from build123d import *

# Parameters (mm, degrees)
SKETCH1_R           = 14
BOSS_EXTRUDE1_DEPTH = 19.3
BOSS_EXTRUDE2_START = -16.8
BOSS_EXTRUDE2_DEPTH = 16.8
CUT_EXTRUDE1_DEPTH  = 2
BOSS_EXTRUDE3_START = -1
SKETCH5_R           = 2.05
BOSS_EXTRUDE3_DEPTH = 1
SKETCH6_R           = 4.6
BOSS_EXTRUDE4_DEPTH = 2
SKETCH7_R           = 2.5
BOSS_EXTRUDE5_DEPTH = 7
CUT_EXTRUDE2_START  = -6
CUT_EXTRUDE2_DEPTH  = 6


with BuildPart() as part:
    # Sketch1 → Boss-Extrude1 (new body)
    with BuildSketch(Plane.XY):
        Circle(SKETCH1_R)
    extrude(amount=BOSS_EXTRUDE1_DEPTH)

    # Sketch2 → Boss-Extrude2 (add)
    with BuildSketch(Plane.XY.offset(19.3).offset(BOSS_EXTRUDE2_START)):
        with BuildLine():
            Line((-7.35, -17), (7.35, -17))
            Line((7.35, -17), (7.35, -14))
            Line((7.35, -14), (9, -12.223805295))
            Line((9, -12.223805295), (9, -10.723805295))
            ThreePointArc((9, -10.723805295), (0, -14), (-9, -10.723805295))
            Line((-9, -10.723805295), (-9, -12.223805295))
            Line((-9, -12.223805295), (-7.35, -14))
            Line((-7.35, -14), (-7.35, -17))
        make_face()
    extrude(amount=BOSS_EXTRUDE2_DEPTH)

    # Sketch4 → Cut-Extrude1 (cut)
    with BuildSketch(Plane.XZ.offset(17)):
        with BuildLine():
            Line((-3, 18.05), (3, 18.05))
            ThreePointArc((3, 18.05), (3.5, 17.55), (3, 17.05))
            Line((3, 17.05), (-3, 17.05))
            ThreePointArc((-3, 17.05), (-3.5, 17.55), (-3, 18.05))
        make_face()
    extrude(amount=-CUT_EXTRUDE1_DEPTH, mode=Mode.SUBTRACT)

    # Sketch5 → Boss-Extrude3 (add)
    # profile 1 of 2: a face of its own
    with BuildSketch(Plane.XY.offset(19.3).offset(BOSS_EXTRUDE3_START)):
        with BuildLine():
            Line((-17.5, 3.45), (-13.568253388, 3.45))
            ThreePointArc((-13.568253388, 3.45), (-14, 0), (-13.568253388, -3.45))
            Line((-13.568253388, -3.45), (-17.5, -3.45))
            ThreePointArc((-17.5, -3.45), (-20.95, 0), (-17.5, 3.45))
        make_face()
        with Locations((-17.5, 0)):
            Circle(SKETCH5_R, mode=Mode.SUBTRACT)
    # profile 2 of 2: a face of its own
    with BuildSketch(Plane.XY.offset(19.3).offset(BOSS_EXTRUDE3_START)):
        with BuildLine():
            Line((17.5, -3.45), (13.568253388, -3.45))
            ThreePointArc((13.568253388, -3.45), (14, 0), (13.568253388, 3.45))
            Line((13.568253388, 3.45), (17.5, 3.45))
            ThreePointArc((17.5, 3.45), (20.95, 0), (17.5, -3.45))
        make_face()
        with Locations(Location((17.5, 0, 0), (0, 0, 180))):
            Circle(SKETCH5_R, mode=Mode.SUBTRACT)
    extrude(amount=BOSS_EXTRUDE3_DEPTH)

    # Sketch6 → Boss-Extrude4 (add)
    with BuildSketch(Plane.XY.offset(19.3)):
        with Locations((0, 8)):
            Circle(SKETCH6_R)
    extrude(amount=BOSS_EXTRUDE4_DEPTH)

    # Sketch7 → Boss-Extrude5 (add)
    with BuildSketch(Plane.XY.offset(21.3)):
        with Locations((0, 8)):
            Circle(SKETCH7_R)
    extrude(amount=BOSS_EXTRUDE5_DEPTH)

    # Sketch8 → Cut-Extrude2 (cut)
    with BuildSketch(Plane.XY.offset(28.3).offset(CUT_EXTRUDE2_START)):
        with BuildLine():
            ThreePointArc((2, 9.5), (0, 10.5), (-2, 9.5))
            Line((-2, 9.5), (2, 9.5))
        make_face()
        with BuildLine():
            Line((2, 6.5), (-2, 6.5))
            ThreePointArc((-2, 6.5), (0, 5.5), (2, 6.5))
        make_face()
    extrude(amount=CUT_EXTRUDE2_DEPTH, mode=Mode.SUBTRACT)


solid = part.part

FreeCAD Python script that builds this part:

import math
import FreeCAD as App
import Part
import Sketcher
from FreeCAD import Vector

doc = App.newDocument("Part")
body = doc.addObject("PartDesign::Body", "Body")

# Sketch on XY plane
sketch1 = body.newObject("Sketcher::SketchObject", "Sketch")
sketch1.AttachmentSupport = (doc.getObject("XY_Plane"), [""])
sketch1.MapMode = "FlatFace"
sketch1.addGeometry(Part.Circle(Vector(0, 0, 0), Vector(0, 0, 1), 14), False)
sketch1.addConstraint(Sketcher.Constraint("Coincident", 0, 3, -1, 1))
sketch1.addConstraint(Sketcher.Constraint("Diameter", 0, 28.0))
pad1 = body.newObject("PartDesign::Pad", "Pad")
pad1.Profile = sketch1
pad1.Length = 19.3

# Sketch on XY plane
sketch2 = body.newObject("Sketcher::SketchObject", "Sketch001")
sketch2.AttachmentSupport = (doc.getObject("XY_Plane"), [""])
sketch2.MapMode = "FlatFace"
sketch2.AttachmentOffset = App.Placement(Vector(0, 0, 2.5), App.Rotation())
sketch2.addGeometry(Part.LineSegment(Vector(-7.3, -17, 0), Vector(7.3, -17, 0)), False)
sketch2.addGeometry(Part.LineSegment(Vector(7.3, -17, 0), Vector(7.3, -14, 0)), False)
sketch2.addGeometry(Part.LineSegment(Vector(7.3, -14, 0), Vector(9, -12.2, 0)), False)
sketch2.addGeometry(Part.LineSegment(Vector(9, -12.2, 0), Vector(9, -10.7, 0)), False)
sketch2.addGeometry(Part.ArcOfCircle(Part.Circle(Vector(0, 0, 0), Vector(0, 0, 1), 14), math.radians(-130), math.radians(-50)), False)
sketch2.addGeometry(Part.LineSegment(Vector(-9, -10.7, 0), Vector(-9, -12.2, 0)), False)
sketch2.addGeometry(Part.LineSegment(Vector(-9, -12.2, 0), Vector(-7.3, -14, 0)), False)
sketch2.addGeometry(Part.LineSegment(Vector(-7.3, -14, 0), Vector(-7.3, -17, 0)), False)
sketch2.addConstraint(Sketcher.Constraint("Coincident", 0, 2, 1, 1))
sketch2.addConstraint(Sketcher.Constraint("Coincident", 1, 2, 2, 1))
sketch2.addConstraint(Sketcher.Constraint("Coincident", 2, 2, 3, 1))
sketch2.addConstraint(Sketcher.Constraint("Coincident", 3, 2, 4, 2))
sketch2.addConstraint(Sketcher.Constraint("Coincident", 4, 1, 5, 1))
sketch2.addConstraint(Sketcher.Constraint("Coincident", 5, 2, 6, 1))
sketch2.addConstraint(Sketcher.Constraint("Coincident", 6, 2, 7, 1))
sketch2.addConstraint(Sketcher.Constraint("Coincident", 7, 2, 0, 1))
sketch2.addConstraint(Sketcher.Constraint("Horizontal", 0))
sketch2.addConstraint(Sketcher.Constraint("Vertical", 1))
sketch2.addConstraint(Sketcher.Constraint("Vertical", 3))
sketch2.addConstraint(Sketcher.Constraint("Vertical", 5))
sketch2.addConstraint(Sketcher.Constraint("Vertical", 7))
sketch2.addConstraint(Sketcher.Constraint("Coincident", 4, 3, -1, 1))
sketch2.addConstraint(Sketcher.Constraint("Symmetric", 2, 2, 5, 2, -2))
sketch2.addConstraint(Sketcher.Constraint("Symmetric", 1, 2, 6, 2, -2))
sketch2.addConstraint(Sketcher.Constraint("Radius", 4, 14.0))
sketch2.addConstraint(Sketcher.Constraint("DistanceY", 1, 1, 1, 2, 3.0))
sketch2.addConstraint(Sketcher.Constraint("DistanceX", 0, 1, 0, 2, 14.7))
sketch2.addConstraint(Sketcher.Constraint("DistanceY", 3, 1, 3, 2, 1.5))
sketch2.addConstraint(Sketcher.Constraint("DistanceY", 0, 2, -1, 1, 17.0))
sketch2.addConstraint(Sketcher.Constraint("DistanceX", -1, 1, 2, 2, 9.0))
pad2 = body.newObject("PartDesign::Pad", "Pad001")
pad2.Profile = sketch2
pad2.Length = 16.8

# Sketch on XZ plane
sketch3 = body.newObject("Sketcher::SketchObject", "Sketch002")
sketch3.AttachmentSupport = (doc.getObject("XZ_Plane"), [""])
sketch3.MapMode = "FlatFace"
sketch3.AttachmentOffset = App.Placement(Vector(0, 0, 17), App.Rotation())
sketch3.addGeometry(Part.LineSegment(Vector(3, 18.1, 0), Vector(-3, 18.1, 0)), False)
sketch3.addGeometry(Part.ArcOfCircle(Part.Circle(Vector(-3, 17.6, 0), Vector(0, 0, 1), 0.5), math.radians(90), math.radians(270)), False)
sketch3.addGeometry(Part.LineSegment(Vector(-3, 17.1, 0), Vector(3, 17.1, 0)), False)
sketch3.addGeometry(Part.ArcOfCircle(Part.Circle(Vector(3, 17.6, 0), Vector(0, 0, 1), 0.5), math.radians(-90), math.radians(90)), False)
sketch3.addConstraint(Sketcher.Constraint("Tangent", 0, 2, 1, 1))
sketch3.addConstraint(Sketcher.Constraint("Tangent", 1, 2, 2, 1))
sketch3.addConstraint(Sketcher.Constraint("Tangent", 2, 2, 3, 1))
sketch3.addConstraint(Sketcher.Constraint("Tangent", 3, 2, 0, 1))
sketch3.addConstraint(Sketcher.Constraint("Horizontal", 0))
sketch3.addConstraint(Sketcher.Constraint("Horizontal", 2))
sketch3.addConstraint(Sketcher.Constraint("Radius", 1, 0.5))
sketch3.addConstraint(Sketcher.Constraint("DistanceX", 0, 2, 0, 1, 6.0))
sketch3.addConstraint(Sketcher.Constraint("DistanceX", 1, 3, -1, 1, 3.0))
sketch3.addConstraint(Sketcher.Constraint("DistanceY", -1, 1, 1, 3, 17.55))
pocket1 = body.newObject("PartDesign::Pocket", "Pocket")
pocket1.Profile = sketch3
pocket1.Length = 2

# Sketch on XY plane
sketch4 = body.newObject("Sketcher::SketchObject", "Sketch003")
sketch4.AttachmentSupport = (doc.getObject("XY_Plane"), [""])
sketch4.MapMode = "FlatFace"
sketch4.AttachmentOffset = App.Placement(Vector(0, 0, 18.3), App.Rotation())
sketch4.addGeometry(Part.LineSegment(Vector(-13.6, 3.5, 0), Vector(-17.5, 3.5, 0)), False)
sketch4.addGeometry(Part.ArcOfCircle(Part.Circle(Vector(-17.5, 0, 0), Vector(0, 0, 1), 3.5), math.radians(90), math.radians(270)), False)
sketch4.addGeometry(Part.LineSegment(Vector(-17.5, -3.5, 0), Vector(-13.6, -3.5, 0)), False)
sketch4.addGeometry(Part.ArcOfCircle(Part.Circle(Vector(0, 0, 0), Vector(0, 0, 1), 14), math.radians(166), math.radians(194)), False)
sketch4.addGeometry(Part.Circle(Vector(-17.5, 0, 0), Vector(0, 0, 1), 2), False)
sketch4.addGeometry(Part.LineSegment(Vector(13.6, -3.5, 0), Vector(17.5, -3.5, 0)), False)
sketch4.addGeometry(Part.ArcOfCircle(Part.Circle(Vector(17.5, 0, 0), Vector(0, 0, 1), 3.5), math.radians(-90), math.radians(90)), False)
sketch4.addGeometry(Part.LineSegment(Vector(17.5, 3.5, 0), Vector(13.6, 3.5, 0)), False)
sketch4.addGeometry(Part.ArcOfCircle(Part.Circle(Vector(0, 0, 0), Vector(0, 0, 1), 14), math.radians(-14), math.radians(14)), False)
sketch4.addGeometry(Part.Circle(Vector(17.5, 0, 0), Vector(0, 0, 1), 2), False)
sketch4.addConstraint(Sketcher.Constraint("Tangent", 0, 2, 1, 1))
sketch4.addConstraint(Sketcher.Constraint("Tangent", 1, 2, 2, 1))
sketch4.addConstraint(Sketcher.Constraint("Coincident", 2, 2, 3, 2))
sketch4.addConstraint(Sketcher.Constraint("Coincident", 3, 1, 0, 1))
sketch4.addConstraint(Sketcher.Constraint("Tangent", 5, 2, 6, 1))
sketch4.addConstraint(Sketcher.Constraint("Tangent", 6, 2, 7, 1))
sketch4.addConstraint(Sketcher.Constraint("Coincident", 7, 2, 8, 2))
sketch4.addConstraint(Sketcher.Constraint("Coincident", 8, 1, 5, 1))
sketch4.addConstraint(Sketcher.Constraint("Horizontal", 0))
sketch4.addConstraint(Sketcher.Constraint("Horizontal", 2))
sketch4.addConstraint(Sketcher.Constraint("Horizontal", 5))
sketch4.addConstraint(Sketcher.Constraint("Horizontal", 7))
sketch4.addConstraint(Sketcher.Constraint("Coincident", 3, 3, -1, 1))
sketch4.addConstraint(Sketcher.Constraint("Coincident", 8, 3, -1, 1))
sketch4.addConstraint(Sketcher.Constraint("Coincident", 4, 3, 1, 3))
sketch4.addConstraint(Sketcher.Constraint("Coincident", 9, 3, 6, 3))
sketch4.addConstraint(Sketcher.Constraint("Equal", 1, 6))
sketch4.addConstraint(Sketcher.Constraint("Equal", 3, 8))
sketch4.addConstraint(Sketcher.Constraint("Equal", 4, 9))
sketch4.addConstraint(Sketcher.Constraint("Symmetric", 1, 3, 6, 3, -1, 1))
sketch4.addConstraint(Sketcher.Constraint("PointOnObject", 1, 3, -1))
sketch4.addConstraint(Sketcher.Constraint("Radius", 3, 14.0))
sketch4.addConstraint(Sketcher.Constraint("Diameter", 4, 4.1))
sketch4.addConstraint(Sketcher.Constraint("Radius", 1, 3.45))
sketch4.addConstraint(Sketcher.Constraint("DistanceX", 1, 3, 6, 3, 35.0))
pad3 = body.newObject("PartDesign::Pad", "Pad002")
pad3.Profile = sketch4
pad3.Length = 1

# Sketch on XY plane
sketch5 = body.newObject("Sketcher::SketchObject", "Sketch004")
sketch5.AttachmentSupport = (doc.getObject("XY_Plane"), [""])
sketch5.MapMode = "FlatFace"
sketch5.AttachmentOffset = App.Placement(Vector(0, 0, 19.3), App.Rotation())
sketch5.addGeometry(Part.Circle(Vector(0, 8, 0), Vector(0, 0, 1), 4.6), False)
sketch5.addConstraint(Sketcher.Constraint("PointOnObject", 0, 3, -2))
sketch5.addConstraint(Sketcher.Constraint("Diameter", 0, 9.2))
sketch5.addConstraint(Sketcher.Constraint("DistanceY", -1, 1, 0, 3, 8.0))
pad4 = body.newObject("PartDesign::Pad", "Pad003")
pad4.Profile = sketch5
pad4.Length = 2

# Sketch on XY plane
sketch6 = body.newObject("Sketcher::SketchObject", "Sketch005")
sketch6.AttachmentSupport = (doc.getObject("XY_Plane"), [""])
sketch6.MapMode = "FlatFace"
sketch6.AttachmentOffset = App.Placement(Vector(0, 0, 21.3), App.Rotation())
sketch6.addGeometry(Part.Circle(Vector(0, 8, 0), Vector(0, 0, 1), 2.5), False)
sketch6.addConstraint(Sketcher.Constraint("PointOnObject", 0, 3, -2))
sketch6.addConstraint(Sketcher.Constraint("Diameter", 0, 5.0))
sketch6.addConstraint(Sketcher.Constraint("DistanceY", -1, 1, 0, 3, 8.0))
pad5 = body.newObject("PartDesign::Pad", "Pad004")
pad5.Profile = sketch6
pad5.Length = 7

# Sketch on XY plane
sketch7 = body.newObject("Sketcher::SketchObject", "Sketch006")
sketch7.AttachmentSupport = (doc.getObject("XY_Plane"), [""])
sketch7.MapMode = "FlatFace"
sketch7.AttachmentOffset = App.Placement(Vector(0, 0, 22.3), App.Rotation())
sketch7.addGeometry(Part.ArcOfCircle(Part.Circle(Vector(0, 8, 0), Vector(0, 0, 1), 2.5), math.radians(37), math.radians(143)), False)
sketch7.addGeometry(Part.LineSegment(Vector(-2, 9.5, 0), Vector(2, 9.5, 0)), False)
sketch7.addGeometry(Part.LineSegment(Vector(2, 6.5, 0), Vector(-2, 6.5, 0)), False)
sketch7.addGeometry(Part.ArcOfCircle(Part.Circle(Vector(0, 8, 0), Vector(0, 0, 1), 2.5), math.radians(-143), math.radians(-37)), False)
sketch7.addConstraint(Sketcher.Constraint("Coincident", 0, 1, 1, 2))
sketch7.addConstraint(Sketcher.Constraint("Coincident", 1, 1, 0, 2))
sketch7.addConstraint(Sketcher.Constraint("Coincident", 2, 1, 3, 2))
sketch7.addConstraint(Sketcher.Constraint("Coincident", 3, 1, 2, 2))
sketch7.addConstraint(Sketcher.Constraint("Horizontal", 1))
sketch7.addConstraint(Sketcher.Constraint("Horizontal", 2))
sketch7.addConstraint(Sketcher.Constraint("Coincident", 3, 3, 0, 3))
sketch7.addConstraint(Sketcher.Constraint("Equal", 0, 3))
sketch7.addConstraint(Sketcher.Constraint("PointOnObject", 0, 3, -2))
sketch7.addConstraint(Sketcher.Constraint("Vertical", 0, 1, 2, 1))
sketch7.addConstraint(Sketcher.Constraint("Radius", 0, 2.5))
sketch7.addConstraint(Sketcher.Constraint("DistanceX", 1, 1, 1, 2, 4.0))
sketch7.addConstraint(Sketcher.Constraint("DistanceY", -1, 1, 0, 3, 8.0))
pocket2 = body.newObject("PartDesign::Pocket", "Pocket001")
pocket2.Profile = sketch7
pocket2.Length = 6
pocket2.Reversed = True

doc.recompute()
